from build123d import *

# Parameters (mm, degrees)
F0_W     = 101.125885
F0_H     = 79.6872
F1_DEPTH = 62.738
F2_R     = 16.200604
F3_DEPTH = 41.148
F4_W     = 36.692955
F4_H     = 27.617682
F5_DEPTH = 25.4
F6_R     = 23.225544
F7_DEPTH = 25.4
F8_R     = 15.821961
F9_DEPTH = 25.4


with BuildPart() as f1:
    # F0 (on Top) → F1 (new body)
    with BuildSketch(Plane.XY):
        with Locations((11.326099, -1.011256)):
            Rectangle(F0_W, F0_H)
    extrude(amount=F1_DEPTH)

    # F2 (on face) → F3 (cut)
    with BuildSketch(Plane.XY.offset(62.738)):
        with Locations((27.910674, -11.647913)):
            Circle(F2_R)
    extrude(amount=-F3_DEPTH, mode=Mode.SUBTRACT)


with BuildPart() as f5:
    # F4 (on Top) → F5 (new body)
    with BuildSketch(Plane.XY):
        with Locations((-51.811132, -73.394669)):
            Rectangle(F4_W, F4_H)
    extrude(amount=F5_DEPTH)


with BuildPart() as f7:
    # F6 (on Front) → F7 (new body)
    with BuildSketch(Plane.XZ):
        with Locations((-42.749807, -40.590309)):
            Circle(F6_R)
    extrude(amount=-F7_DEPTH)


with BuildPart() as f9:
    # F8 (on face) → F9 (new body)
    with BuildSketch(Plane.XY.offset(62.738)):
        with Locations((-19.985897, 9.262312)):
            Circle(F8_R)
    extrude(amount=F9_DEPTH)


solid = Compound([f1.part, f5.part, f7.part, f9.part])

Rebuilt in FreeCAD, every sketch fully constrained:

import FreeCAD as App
import Part
import Sketcher
from FreeCAD import Vector
Q = App.Units.Quantity

doc = App.newDocument("Part")
body = doc.addObject("PartDesign::Body", "Body")

# Sketch on XY plane
sketch1 = body.newObject("Sketcher::SketchObject", "Sketch")
sketch1.AttachmentSupport = (doc.getObject("XY_Plane"), [""])
sketch1.MapMode = "FlatFace"
sketch1.addGeometry(Part.LineSegment(Vector(-39, 39, 0), Vector(-39, -41, 0)), False)
sketch1.addGeometry(Part.LineSegment(Vector(-39, -41, 0), Vector(62, -41, 0)), False)
sketch1.addGeometry(Part.LineSegment(Vector(62, -41, 0), Vector(62, 39, 0)), False)
sketch1.addGeometry(Part.LineSegment(Vector(62, 39, 0), Vector(-39, 39, 0)), False)
sketch1.addConstraint(Sketcher.Constraint("Coincident", 0, 2, 1, 1))
sketch1.addConstraint(Sketcher.Constraint("Coincident", 1, 2, 2, 1))
sketch1.addConstraint(Sketcher.Constraint("Coincident", 2, 2, 3, 1))
sketch1.addConstraint(Sketcher.Constraint("Coincident", 3, 2, 0, 1))
sketch1.addConstraint(Sketcher.Constraint("Vertical", 0))
sketch1.addConstraint(Sketcher.Constraint("Horizontal", 1))
sketch1.addConstraint(Sketcher.Constraint("Vertical", 2))
sketch1.addConstraint(Sketcher.Constraint("Horizontal", 3))
sketch1.addConstraint(Sketcher.Constraint("DistanceY", 0, 2, 0, 1, Q("79.6872 mm")))
sketch1.addConstraint(Sketcher.Constraint("DistanceX", 1, 1, 1, 2, Q("101.125885 mm")))
sketch1.addConstraint(Sketcher.Constraint("DistanceX", -1, 1, 1, 2, Q("61.889041 mm")))
sketch1.addConstraint(Sketcher.Constraint("DistanceY", 0, 2, -1, 1, Q("40.854856 mm")))
pad1 = body.newObject("PartDesign::Pad", "Pad")
pad1.Profile = sketch1
pad1.Length = Q("2.47 in")

# Sketch on XY plane
sketch2 = body.newObject("Sketcher::SketchObject", "Sketch001")
sketch2.AttachmentSupport = (doc.getObject("XY_Plane"), [""])
sketch2.MapMode = "FlatFace"
sketch2.AttachmentOffset = App.Placement(Vector(0, 0, 2.47 * 25.4), App.Rotation())
sketch2.addGeometry(Part.Circle(Vector(28, -12, 0), Vector(0, 0, 1), 16), False)
sketch2.addConstraint(Sketcher.Constraint("Diameter", 0, Q("32.401208 mm")))
sketch2.addConstraint(Sketcher.Constraint("DistanceX", -1, 1, 0, 3, Q("27.910674 mm")))
sketch2.addConstraint(Sketcher.Constraint("DistanceY", 0, 3, -1, 1, Q("11.647913 mm")))
pocket1 = body.newObject("PartDesign::Pocket", "Pocket")
pocket1.Profile = sketch2
pocket1.Length = Q("1.62 in")
body2 = doc.addObject("PartDesign::Body", "Body001")

# Sketch on XY plane
sketch3 = body2.newObject("Sketcher::SketchObject", "Sketch002")
sketch3.AttachmentSupport = (doc.getObject("XY_Plane001"), [""])
sketch3.MapMode = "FlatFace"
sketch3.addGeometry(Part.LineSegment(Vector(-70, -60, 0), Vector(-70, -87, 0)), False)
sketch3.addGeometry(Part.LineSegment(Vector(-70, -87, 0), Vector(-33, -87, 0)), False)
sketch3.addGeometry(Part.LineSegment(Vector(-33, -87, 0), Vector(-33, -60, 0)), False)
sketch3.addGeometry(Part.LineSegment(Vector(-33, -60, 0), Vector(-70, -60, 0)), False)
sketch3.addConstraint(Sketcher.Constraint("Coincident", 0, 2, 1, 1))
sketch3.addConstraint(Sketcher.Constraint("Coincident", 1, 2, 2, 1))
sketch3.addConstraint(Sketcher.Constraint("Coincident", 2, 2, 3, 1))
sketch3.addConstraint(Sketcher.Constraint("Coincident", 3, 2, 0, 1))
sketch3.addConstraint(Sketcher.Constraint("Vertical", 0))
sketch3.addConstraint(Sketcher.Constraint("Horizontal", 1))
sketch3.addConstraint(Sketcher.Constraint("Vertical", 2))
sketch3.addConstraint(Sketcher.Constraint("Horizontal", 3))
sketch3.addConstraint(Sketcher.Constraint("DistanceY", 0, 2, 0, 1, Q("27.617682 mm")))
sketch3.addConstraint(Sketcher.Constraint("DistanceX", 1, 1, 1, 2, Q("36.692955 mm")))
sketch3.addConstraint(Sketcher.Constraint("DistanceX", 0, 2, -1, 1, Q("70.15761 mm")))
sketch3.addConstraint(Sketcher.Constraint("DistanceY", 0, 2, -1, 1, Q("87.20351 mm")))
pad2 = body2.newObject("PartDesign::Pad", "Pad001")
pad2.Profile = sketch3
pad2.Length = Q("1 in")
body3 = doc.addObject("PartDesign::Body", "Body002")

# Sketch on XZ plane
sketch4 = body3.newObject("Sketcher::SketchObject", "Sketch003")
sketch4.AttachmentSupport = (doc.getObject("XZ_Plane002"), [""])
sketch4.MapMode = "FlatFace"
sketch4.addGeometry(Part.Circle(Vector(-43, -41, 0), Vector(0, 0, 1), 23), False)
sketch4.addConstraint(Sketcher.Constraint("Diameter", 0, Q("46.451088 mm")))
sketch4.addConstraint(Sketcher.Constraint("DistanceY", 0, 3, -1, 1, Q("40.590309 mm")))
sketch4.addConstraint(Sketcher.Constraint("DistanceX", 0, 3, -1, 1, Q("42.749807 mm")))
pad3 = body3.newObject("PartDesign::Pad", "Pad002")
pad3.Profile = sketch4
pad3.Length = Q("1 in")
pad3.Reversed = True
body4 = doc.addObject("PartDesign::Body", "Body003")

# Sketch on XY plane
sketch5 = body4.newObject("Sketcher::SketchObject", "Sketch004")
sketch5.AttachmentSupport = (doc.getObject("XY_Plane003"), [""])
sketch5.MapMode = "FlatFace"
sketch5.AttachmentOffset = App.Placement(Vector(0, 0, 2.47 * 25.4), App.Rotation())
sketch5.addGeometry(Part.Circle(Vector(-20, 9, 0), Vector(0, 0, 1), 16), False)
sketch5.addConstraint(Sketcher.Constraint("Diameter", 0, Q("31.643922 mm")))
sketch5.addConstraint(Sketcher.Constraint("DistanceX", 0, 3, -1, 1, Q("19.985897 mm")))
sketch5.addConstraint(Sketcher.Constraint("DistanceY", -1, 1, 0, 3, Q("9.262312 mm")))
pad4 = body4.newObject("PartDesign::Pad", "Pad003")
pad4.Profile = sketch5
pad4.Length = Q("1 in")

doc.recompute()
